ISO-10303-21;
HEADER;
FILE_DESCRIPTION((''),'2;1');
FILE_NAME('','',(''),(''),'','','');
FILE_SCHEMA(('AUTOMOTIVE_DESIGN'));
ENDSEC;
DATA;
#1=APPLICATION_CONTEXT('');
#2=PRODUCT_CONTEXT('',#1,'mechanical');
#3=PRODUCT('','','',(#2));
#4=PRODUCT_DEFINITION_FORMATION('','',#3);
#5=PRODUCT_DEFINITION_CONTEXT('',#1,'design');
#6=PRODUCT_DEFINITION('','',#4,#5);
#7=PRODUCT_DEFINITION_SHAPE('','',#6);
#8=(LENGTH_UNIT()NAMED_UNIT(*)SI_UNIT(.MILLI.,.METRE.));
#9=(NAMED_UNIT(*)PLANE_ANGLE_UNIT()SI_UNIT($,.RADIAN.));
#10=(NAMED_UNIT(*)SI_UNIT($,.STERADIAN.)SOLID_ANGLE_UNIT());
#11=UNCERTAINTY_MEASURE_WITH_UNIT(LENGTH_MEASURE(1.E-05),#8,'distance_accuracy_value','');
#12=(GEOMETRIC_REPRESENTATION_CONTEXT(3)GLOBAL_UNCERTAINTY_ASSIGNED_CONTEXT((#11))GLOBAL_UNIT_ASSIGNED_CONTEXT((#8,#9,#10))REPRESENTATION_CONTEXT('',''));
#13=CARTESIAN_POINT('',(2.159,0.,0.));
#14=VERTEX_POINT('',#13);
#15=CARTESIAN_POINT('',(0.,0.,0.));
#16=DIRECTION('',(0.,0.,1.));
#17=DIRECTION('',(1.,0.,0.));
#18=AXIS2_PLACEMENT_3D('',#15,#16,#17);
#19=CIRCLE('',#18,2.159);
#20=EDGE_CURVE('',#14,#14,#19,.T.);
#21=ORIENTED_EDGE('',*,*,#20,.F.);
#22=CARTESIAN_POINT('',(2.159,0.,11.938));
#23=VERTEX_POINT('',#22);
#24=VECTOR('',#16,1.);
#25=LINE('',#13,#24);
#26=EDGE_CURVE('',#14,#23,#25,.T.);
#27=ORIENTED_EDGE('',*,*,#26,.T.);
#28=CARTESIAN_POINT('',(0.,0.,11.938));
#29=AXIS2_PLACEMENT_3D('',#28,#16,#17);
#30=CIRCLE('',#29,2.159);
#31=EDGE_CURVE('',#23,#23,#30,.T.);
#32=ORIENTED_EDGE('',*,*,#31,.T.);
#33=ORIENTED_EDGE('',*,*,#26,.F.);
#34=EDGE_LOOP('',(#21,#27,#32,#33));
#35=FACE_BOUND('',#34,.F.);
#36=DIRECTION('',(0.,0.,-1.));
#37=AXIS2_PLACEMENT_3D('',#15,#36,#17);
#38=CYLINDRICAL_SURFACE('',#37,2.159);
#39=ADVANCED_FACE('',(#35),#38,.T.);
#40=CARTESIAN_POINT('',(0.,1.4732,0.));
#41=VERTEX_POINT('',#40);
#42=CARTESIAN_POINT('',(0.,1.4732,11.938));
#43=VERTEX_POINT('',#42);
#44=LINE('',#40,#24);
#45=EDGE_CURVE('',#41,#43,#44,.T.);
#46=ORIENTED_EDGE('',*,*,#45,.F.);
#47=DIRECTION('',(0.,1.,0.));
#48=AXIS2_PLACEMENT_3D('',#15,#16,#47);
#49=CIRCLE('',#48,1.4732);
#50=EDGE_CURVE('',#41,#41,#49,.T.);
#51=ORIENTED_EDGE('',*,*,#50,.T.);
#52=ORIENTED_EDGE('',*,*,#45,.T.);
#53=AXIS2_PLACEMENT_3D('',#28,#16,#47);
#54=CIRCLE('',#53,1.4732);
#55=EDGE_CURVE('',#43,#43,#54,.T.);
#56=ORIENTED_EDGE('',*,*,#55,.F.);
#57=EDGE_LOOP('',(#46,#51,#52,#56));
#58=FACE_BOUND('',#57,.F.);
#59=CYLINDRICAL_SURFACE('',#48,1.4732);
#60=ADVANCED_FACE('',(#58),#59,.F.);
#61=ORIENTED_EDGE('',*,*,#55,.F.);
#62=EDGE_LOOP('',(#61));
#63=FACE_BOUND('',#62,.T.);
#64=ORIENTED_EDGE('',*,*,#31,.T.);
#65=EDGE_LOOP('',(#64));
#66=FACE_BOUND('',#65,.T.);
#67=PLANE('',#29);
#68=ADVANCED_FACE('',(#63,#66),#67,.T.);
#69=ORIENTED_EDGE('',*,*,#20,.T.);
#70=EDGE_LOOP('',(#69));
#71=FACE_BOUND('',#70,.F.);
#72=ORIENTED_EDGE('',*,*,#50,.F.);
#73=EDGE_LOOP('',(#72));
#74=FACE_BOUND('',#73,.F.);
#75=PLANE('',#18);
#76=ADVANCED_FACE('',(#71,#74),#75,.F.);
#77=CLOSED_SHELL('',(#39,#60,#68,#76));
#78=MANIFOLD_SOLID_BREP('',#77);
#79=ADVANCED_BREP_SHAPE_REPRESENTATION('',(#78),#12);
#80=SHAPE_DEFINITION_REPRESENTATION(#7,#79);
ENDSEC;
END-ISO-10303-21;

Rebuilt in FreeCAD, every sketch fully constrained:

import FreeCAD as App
import Part
import Sketcher

V = App.Vector
Q = App.Units.Quantity

doc = App.newDocument("Part")
params = doc.addObject("Spreadsheet::Sheet", "Params")
for row, (alias, value) in enumerate([
    ("sketch1_diameter", "0.17 in"),
    ("pad1_length", "0.47 in"),
    ("sketch2_diameter", "0.116 in"),
    ("hole_diameter", "0.116 in"),
], start=1):
    params.set(f"A{row}", alias)
    params.set(f"B{row}", "=" + value)
    params.setAlias(f"B{row}", alias)

body = doc.addObject("PartDesign::Body", "Body")

# Sketch on XY plane
sketch1 = body.newObject("Sketcher::SketchObject", "Sketch")
sketch1.AttachmentSupport = (doc.getObject("XY_Plane"), [""])
sketch1.MapMode = "FlatFace"
sketch1.addGeometry(Part.Circle(V(0, 0, 0), V(0, 0, 1), 2.2), False)
sketch1.addConstraint(Sketcher.Constraint("Coincident", 0, 3, -1, 1))
sketch1.addConstraint(Sketcher.Constraint("Diameter", 0, Q("0.17 in")))
sketch1.setExpression("Constraints[1]", "Params.sketch1_diameter")
pad1 = body.newObject("PartDesign::Pad", "Pad")
pad1.Profile = sketch1
pad1.setExpression("Length", "Params.pad1_length")

# Sketch on XY plane
sketch2 = body.newObject("Sketcher::SketchObject", "Sketch001")
sketch2.AttachmentSupport = (doc.getObject("XY_Plane"), [""])
sketch2.MapMode = "FlatFace"
sketch2.addGeometry(Part.Circle(V(0, 0, 0), V(0, 0, 1), 1.5), False)
sketch2.addConstraint(Sketcher.Constraint("Coincident", 0, 3, -1, 1))
sketch2.addConstraint(Sketcher.Constraint("Diameter", 0, Q("0.116 in")))
sketch2.setExpression("Constraints[1]", "Params.sketch2_diameter")
doc.recompute()
hole = body.newObject("PartDesign::Hole", "Hole")
hole.Profile = sketch2
hole.ThreadType = "None"
hole.setExpression("Diameter", "Params.hole_diameter")
hole.DepthType = "ThroughAll"
hole.Reversed = True

doc.recompute()
